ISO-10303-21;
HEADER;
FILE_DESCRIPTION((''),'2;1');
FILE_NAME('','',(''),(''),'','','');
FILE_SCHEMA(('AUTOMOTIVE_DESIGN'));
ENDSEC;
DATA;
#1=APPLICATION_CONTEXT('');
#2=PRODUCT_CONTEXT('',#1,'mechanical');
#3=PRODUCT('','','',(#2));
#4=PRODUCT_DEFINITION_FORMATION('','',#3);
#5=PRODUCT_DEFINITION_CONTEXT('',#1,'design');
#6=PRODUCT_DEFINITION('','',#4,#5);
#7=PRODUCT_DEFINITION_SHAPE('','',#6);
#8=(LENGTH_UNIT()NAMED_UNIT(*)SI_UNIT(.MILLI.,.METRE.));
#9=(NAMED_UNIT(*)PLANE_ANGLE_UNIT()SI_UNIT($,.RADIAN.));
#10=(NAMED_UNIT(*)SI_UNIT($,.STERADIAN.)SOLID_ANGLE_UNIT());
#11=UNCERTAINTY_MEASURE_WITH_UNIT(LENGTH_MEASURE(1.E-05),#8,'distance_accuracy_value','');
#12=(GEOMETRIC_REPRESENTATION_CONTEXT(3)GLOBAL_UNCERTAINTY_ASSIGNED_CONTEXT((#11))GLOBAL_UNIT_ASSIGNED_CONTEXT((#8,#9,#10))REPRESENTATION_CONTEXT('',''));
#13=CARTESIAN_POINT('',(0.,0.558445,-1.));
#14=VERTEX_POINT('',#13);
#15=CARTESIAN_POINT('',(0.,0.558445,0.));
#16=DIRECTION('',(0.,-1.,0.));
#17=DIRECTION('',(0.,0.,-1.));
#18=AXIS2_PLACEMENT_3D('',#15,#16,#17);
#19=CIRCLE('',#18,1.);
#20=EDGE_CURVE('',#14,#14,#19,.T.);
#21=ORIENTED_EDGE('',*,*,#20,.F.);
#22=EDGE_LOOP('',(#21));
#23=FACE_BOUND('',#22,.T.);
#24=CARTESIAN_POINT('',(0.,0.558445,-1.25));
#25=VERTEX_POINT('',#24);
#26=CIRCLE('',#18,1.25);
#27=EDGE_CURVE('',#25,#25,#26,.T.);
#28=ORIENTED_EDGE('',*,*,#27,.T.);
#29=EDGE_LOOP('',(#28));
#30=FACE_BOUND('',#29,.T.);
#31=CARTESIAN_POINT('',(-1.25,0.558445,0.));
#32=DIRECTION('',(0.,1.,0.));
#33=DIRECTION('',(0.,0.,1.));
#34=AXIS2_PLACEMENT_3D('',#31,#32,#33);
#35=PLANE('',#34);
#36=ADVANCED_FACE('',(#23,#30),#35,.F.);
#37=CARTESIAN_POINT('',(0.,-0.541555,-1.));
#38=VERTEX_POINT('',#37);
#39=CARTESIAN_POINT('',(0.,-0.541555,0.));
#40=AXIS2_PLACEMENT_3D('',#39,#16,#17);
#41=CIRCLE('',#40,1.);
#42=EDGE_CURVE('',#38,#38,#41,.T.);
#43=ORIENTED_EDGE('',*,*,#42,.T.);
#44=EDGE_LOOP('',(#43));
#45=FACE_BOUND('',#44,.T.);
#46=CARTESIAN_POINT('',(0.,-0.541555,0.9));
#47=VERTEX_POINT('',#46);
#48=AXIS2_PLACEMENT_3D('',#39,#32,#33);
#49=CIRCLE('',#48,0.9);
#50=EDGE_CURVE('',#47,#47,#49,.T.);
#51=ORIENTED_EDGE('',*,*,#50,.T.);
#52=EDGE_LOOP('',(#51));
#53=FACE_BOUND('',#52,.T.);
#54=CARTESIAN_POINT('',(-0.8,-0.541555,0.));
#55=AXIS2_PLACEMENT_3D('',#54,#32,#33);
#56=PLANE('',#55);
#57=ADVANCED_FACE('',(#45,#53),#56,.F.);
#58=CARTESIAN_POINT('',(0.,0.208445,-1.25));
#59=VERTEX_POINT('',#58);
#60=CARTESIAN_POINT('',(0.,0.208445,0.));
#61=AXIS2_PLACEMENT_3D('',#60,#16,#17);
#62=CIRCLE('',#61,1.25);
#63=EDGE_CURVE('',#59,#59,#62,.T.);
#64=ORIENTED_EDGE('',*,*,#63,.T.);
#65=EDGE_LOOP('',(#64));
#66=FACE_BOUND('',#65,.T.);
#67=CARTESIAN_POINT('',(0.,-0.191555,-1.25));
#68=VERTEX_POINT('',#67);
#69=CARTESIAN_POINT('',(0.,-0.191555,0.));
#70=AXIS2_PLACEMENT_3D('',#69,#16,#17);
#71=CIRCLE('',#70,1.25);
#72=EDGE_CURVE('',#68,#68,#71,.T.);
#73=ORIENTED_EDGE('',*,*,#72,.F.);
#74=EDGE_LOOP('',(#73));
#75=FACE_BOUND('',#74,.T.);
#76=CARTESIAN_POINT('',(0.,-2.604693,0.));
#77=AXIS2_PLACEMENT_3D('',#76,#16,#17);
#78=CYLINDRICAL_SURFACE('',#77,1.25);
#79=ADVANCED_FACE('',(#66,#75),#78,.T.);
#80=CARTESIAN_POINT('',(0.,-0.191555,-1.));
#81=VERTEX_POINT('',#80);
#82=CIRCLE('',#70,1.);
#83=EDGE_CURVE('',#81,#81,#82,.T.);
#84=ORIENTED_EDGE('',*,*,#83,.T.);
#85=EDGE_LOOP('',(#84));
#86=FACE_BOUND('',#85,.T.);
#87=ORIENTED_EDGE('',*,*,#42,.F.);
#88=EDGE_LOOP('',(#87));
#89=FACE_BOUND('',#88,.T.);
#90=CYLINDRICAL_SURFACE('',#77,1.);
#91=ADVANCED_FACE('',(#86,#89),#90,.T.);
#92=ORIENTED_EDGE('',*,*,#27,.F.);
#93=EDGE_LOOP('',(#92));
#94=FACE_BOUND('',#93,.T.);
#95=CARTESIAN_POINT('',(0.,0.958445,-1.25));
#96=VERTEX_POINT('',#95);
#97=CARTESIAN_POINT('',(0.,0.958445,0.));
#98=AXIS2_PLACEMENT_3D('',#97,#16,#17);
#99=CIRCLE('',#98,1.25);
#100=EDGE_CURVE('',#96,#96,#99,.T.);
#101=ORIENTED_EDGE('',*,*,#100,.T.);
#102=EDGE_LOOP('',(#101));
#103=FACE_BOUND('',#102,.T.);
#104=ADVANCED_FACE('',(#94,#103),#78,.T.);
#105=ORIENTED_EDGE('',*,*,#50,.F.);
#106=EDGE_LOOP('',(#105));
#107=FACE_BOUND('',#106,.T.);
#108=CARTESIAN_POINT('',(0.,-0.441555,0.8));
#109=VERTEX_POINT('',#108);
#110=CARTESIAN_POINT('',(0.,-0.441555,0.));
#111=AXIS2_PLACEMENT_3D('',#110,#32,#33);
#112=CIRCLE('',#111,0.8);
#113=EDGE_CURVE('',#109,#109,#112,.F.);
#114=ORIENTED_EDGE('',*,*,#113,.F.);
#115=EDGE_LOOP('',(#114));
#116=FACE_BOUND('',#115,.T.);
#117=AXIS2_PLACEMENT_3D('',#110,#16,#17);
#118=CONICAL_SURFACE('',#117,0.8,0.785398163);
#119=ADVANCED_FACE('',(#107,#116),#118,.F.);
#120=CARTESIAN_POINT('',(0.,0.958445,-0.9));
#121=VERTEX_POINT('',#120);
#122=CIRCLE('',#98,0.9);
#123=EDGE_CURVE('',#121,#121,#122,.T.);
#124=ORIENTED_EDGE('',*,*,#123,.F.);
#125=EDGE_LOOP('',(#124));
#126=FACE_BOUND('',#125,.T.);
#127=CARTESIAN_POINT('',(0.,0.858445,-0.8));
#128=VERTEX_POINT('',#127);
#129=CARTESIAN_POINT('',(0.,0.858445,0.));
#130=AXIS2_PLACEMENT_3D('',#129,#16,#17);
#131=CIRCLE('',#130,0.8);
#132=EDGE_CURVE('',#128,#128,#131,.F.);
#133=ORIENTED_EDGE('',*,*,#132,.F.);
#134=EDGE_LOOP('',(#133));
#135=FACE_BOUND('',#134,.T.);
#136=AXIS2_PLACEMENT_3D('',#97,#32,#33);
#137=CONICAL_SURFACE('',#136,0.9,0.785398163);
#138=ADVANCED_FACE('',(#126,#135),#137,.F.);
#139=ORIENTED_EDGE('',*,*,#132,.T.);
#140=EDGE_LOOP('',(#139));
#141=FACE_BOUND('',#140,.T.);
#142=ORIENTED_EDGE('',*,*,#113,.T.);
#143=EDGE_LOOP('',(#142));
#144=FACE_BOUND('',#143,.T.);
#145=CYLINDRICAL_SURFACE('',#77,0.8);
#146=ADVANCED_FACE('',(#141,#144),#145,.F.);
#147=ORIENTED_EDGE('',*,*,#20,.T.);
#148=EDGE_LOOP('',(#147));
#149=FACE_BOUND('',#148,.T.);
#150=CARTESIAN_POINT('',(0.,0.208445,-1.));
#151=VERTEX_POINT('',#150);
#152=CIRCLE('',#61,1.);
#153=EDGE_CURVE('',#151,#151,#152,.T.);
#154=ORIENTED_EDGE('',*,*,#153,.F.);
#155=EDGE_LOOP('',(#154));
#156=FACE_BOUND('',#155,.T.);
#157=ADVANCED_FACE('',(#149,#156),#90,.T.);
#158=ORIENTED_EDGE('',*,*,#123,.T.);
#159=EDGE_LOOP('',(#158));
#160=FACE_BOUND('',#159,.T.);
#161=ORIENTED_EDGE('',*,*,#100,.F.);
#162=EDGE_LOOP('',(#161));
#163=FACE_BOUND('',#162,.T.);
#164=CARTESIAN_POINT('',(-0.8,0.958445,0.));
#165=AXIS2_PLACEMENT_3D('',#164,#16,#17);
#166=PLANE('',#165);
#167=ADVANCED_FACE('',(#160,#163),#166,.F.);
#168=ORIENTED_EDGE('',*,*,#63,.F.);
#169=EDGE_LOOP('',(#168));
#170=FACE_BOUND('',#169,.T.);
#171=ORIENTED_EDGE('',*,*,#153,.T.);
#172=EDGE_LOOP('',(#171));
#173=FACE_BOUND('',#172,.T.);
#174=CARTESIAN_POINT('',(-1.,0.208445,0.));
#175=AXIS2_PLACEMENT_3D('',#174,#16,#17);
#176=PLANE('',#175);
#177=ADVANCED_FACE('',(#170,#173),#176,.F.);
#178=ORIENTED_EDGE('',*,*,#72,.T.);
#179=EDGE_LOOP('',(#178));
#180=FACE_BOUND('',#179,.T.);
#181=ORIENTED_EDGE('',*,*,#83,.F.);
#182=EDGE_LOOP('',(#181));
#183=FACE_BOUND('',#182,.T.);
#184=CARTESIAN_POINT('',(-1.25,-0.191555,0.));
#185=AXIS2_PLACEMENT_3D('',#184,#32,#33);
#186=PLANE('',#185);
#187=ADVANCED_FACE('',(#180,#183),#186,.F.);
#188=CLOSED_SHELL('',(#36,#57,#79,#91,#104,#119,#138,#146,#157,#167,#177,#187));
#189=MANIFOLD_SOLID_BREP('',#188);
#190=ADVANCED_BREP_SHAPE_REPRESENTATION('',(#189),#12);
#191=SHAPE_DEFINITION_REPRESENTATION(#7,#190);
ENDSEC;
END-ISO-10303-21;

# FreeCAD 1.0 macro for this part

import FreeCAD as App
import Part
import Sketcher
Q = App.Units.Quantity


def edges_at(feature, points):
    """Names of the edges that pass closest to the given points."""
    edges = feature.Shape.Edges
    near = lambda p: min(range(len(edges)), key=lambda i: edges[i].distToShape(Part.Vertex(*p))[0])
    return sorted({f"Edge{near(p) + 1}" for p in points})

doc = App.newDocument("Part")
body = doc.addObject("PartDesign::Body", "Body")

# Sketch on XY plane
sketch1 = doc.addObject("Sketcher::SketchObject", "Sketch")
body.addObject(sketch1)
sketch1.AttachmentSupport = (doc.XY_Plane, [""])
sketch1.MapMode = "FlatFace"
sketch1.addGeometry([
    Part.LineSegment(App.Vector(-0.8, 0.958445, 0), App.Vector(-1.25, 0.958445, 0)),  # 0
    Part.LineSegment(App.Vector(-1.25, 0.958445, 0), App.Vector(-1.25, 0.558445, 0)),  # 1
    Part.LineSegment(App.Vector(-1.25, 0.558445, 0), App.Vector(-1, 0.558445, 0)),  # 2
    Part.LineSegment(App.Vector(-1, 0.558445, 0), App.Vector(-1, 0.208445, 0)),  # 3
    Part.LineSegment(App.Vector(-1, 0.208445, 0), App.Vector(-1.25, 0.208445, 0)),  # 4
    Part.LineSegment(App.Vector(-1.25, 0.208445, 0), App.Vector(-1.25, -0.191555, 0)),  # 5
    Part.LineSegment(App.Vector(-1.25, -0.191555, 0), App.Vector(-1, -0.191555, 0)),  # 6
    Part.LineSegment(App.Vector(-1, -0.191555, 0), App.Vector(-1, -0.541555, 0)),  # 7
    Part.LineSegment(App.Vector(-1, -0.541555, 0), App.Vector(-0.8, -0.541555, 0)),  # 8
    Part.LineSegment(App.Vector(-0.8, -0.541555, 0), App.Vector(-0.8, 0.958445, 0)),  # 9
], False)
sketch1.addConstraint([
    Sketcher.Constraint("Coincident", 0, 2, 1, 1),
    Sketcher.Constraint("Coincident", 1, 2, 2, 1),
    Sketcher.Constraint("Coincident", 2, 2, 3, 1),
    Sketcher.Constraint("Coincident", 3, 2, 4, 1),
    Sketcher.Constraint("Coincident", 4, 2, 5, 1),
    Sketcher.Constraint("Coincident", 5, 2, 6, 1),
    Sketcher.Constraint("Coincident", 6, 2, 7, 1),
    Sketcher.Constraint("Coincident", 7, 2, 8, 1),
    Sketcher.Constraint("Coincident", 8, 2, 9, 1),
    Sketcher.Constraint("Coincident", 9, 2, 0, 1),
    Sketcher.Constraint("Horizontal", 0),
    Sketcher.Constraint("Vertical", 1),
    Sketcher.Constraint("Horizontal", 2),
    Sketcher.Constraint("Vertical", 3),
    Sketcher.Constraint("Horizontal", 4),
    Sketcher.Constraint("Vertical", 5),
    Sketcher.Constraint("Horizontal", 6),
    Sketcher.Constraint("Vertical", 7),
    Sketcher.Constraint("Horizontal", 8),
    Sketcher.Constraint("Vertical", 9),
    Sketcher.Constraint("Vertical", 1, 2, 4, 2),
    Sketcher.Constraint("Vertical", 3, 2, 6, 2),
    Sketcher.Constraint("Equal", 1, 5),
    Sketcher.Constraint("Equal", 3, 7),
    Sketcher.Constraint("DistanceX", 8, 1, 8, 2, Q("0.2 mm")),
    Sketcher.Constraint("DistanceY", 1, 2, 1, 1, Q("0.4 mm")),
    Sketcher.Constraint("DistanceY", 9, 1, 9, 2, Q("1.5 mm")),
    Sketcher.Constraint("DistanceX", 2, 2, -1, 1, Q("1 mm")),
    Sketcher.Constraint("DistanceX", 0, 2, 0, 1, Q("0.45 mm")),
    Sketcher.Constraint("DistanceY", -1, 1, 0, 2, Q("0.958445 mm")),
])
revolution = doc.addObject("PartDesign::Revolution", "Revolution")
body.addObject(revolution)
revolution.Profile = sketch1
revolution.ReferenceAxis = (sketch1, ["V_Axis"])
revolution.Angle = 360
doc.recompute()

chamfer = doc.addObject("PartDesign::Chamfer", "Chamfer")
body.addObject(chamfer)
chamfer.Base = (revolution, edges_at(revolution, [(0, 0.958, 0.8), (0, -0.542, 0.8)]))
chamfer.Size = 0.1

doc.recompute()
